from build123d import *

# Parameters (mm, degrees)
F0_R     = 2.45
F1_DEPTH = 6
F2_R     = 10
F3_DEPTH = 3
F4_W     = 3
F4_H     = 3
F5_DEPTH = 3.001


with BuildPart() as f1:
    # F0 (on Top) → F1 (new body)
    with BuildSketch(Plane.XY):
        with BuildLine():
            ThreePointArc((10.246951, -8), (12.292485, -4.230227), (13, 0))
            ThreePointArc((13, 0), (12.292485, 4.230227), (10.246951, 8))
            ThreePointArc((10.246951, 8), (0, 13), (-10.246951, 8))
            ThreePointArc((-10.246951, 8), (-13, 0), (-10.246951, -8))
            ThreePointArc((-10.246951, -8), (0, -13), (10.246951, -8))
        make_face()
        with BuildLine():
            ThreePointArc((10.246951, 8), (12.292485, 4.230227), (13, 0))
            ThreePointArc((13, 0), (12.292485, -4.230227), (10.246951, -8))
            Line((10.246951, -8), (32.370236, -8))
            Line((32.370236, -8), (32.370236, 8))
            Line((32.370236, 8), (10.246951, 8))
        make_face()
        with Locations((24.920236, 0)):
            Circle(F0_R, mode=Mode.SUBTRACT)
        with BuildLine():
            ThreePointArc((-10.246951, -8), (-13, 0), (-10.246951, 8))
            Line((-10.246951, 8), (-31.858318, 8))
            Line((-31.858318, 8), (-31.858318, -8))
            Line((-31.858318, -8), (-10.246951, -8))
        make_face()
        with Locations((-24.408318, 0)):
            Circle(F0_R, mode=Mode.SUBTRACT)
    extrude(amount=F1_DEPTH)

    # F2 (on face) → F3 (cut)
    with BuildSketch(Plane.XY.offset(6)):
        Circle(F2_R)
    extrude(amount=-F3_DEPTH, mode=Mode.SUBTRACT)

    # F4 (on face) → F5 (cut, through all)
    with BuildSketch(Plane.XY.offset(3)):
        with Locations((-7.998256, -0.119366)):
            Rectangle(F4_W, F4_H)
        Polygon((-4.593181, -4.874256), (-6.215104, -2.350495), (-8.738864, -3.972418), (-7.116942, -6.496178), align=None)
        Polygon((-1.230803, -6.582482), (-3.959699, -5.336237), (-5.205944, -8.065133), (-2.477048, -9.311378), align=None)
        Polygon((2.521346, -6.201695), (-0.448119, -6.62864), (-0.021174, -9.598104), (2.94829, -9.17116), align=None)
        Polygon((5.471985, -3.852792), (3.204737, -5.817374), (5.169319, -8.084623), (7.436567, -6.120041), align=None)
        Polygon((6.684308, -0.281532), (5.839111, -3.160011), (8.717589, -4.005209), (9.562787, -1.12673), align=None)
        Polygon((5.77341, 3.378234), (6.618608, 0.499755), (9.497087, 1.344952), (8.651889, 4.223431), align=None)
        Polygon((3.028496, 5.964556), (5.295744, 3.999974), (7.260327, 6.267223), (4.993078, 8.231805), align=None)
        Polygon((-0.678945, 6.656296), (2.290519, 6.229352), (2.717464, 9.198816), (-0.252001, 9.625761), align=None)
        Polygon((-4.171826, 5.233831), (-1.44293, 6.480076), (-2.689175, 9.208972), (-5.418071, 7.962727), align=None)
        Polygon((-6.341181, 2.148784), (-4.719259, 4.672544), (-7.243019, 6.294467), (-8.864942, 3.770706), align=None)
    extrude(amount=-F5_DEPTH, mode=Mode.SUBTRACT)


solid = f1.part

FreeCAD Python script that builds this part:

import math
import FreeCAD as App
import Part
import Sketcher
from FreeCAD import Vector
Q = App.Units.Quantity

doc = App.newDocument("Part")
body = doc.addObject("PartDesign::Body", "Body")

sketch1 = doc.addObject("Sketcher::SketchObject", "Sketch")
body.addObject(sketch1)
sketch1.AttachmentSupport = (doc.XY_Plane, [""])
sketch1.MapMode = "FlatFace"
sketch1.addGeometry([
    Part.ArcOfCircle(Part.Circle(Vector(0, 0, 0), Vector(0, 0, 1), 13), math.radians(38), math.radians(142)),
    Part.LineSegment(Vector(-10.2, 8, 0), Vector(-31.9, 8, 0)),
    Part.LineSegment(Vector(-31.9, 8, 0), Vector(-31.9, -8, 0)),
    Part.LineSegment(Vector(-31.9, -8, 0), Vector(-10.2, -8, 0)),
    Part.ArcOfCircle(Part.Circle(Vector(0, 0, 0), Vector(0, 0, 1), 13), math.radians(-142), math.radians(-38)),
    Part.LineSegment(Vector(10.2, -8, 0), Vector(32.4, -8, 0)),
    Part.LineSegment(Vector(32.4, -8, 0), Vector(32.4, 8, 0)),
    Part.LineSegment(Vector(32.4, 8, 0), Vector(10.2, 8, 0)),
    Part.Circle(Vector(-24.4, 0, 0), Vector(0, 0, 1), 2.5),
    Part.Circle(Vector(24.9, 0, 0), Vector(0, 0, 1), 2.5),
], False)
sketch1.addConstraint([
    Sketcher.Constraint("Coincident", 0, 2, 1, 1),
    Sketcher.Constraint("Coincident", 1, 2, 2, 1),
    Sketcher.Constraint("Coincident", 2, 2, 3, 1),
    Sketcher.Constraint("Coincident", 3, 2, 4, 1),
    Sketcher.Constraint("Coincident", 4, 2, 5, 1),
    Sketcher.Constraint("Coincident", 5, 2, 6, 1),
    Sketcher.Constraint("Coincident", 6, 2, 7, 1),
    Sketcher.Constraint("Coincident", 7, 2, 0, 1),
    Sketcher.Constraint("Horizontal", 1),
    Sketcher.Constraint("Vertical", 2),
    Sketcher.Constraint("Horizontal", 3),
    Sketcher.Constraint("Horizontal", 5),
    Sketcher.Constraint("Vertical", 6),
    Sketcher.Constraint("Horizontal", 7),
    Sketcher.Constraint("Coincident", 0, 3, -1, 1),
    Sketcher.Constraint("Coincident", 4, 3, -1, 1),
    Sketcher.Constraint("Equal", 0, 4),
    Sketcher.Constraint("Equal", 8, 9),
    Sketcher.Constraint("PointOnObject", 8, 3, -1),
    Sketcher.Constraint("PointOnObject", 9, 3, -1),
    Sketcher.Constraint("Horizontal", 3, 2, 4, 2),
    Sketcher.Constraint("Horizontal", 1, 2, 6, 2),
    Sketcher.Constraint("Vertical", 0, 2, 3, 2),
    Sketcher.Constraint("Radius", 0, Q("13 mm")),
    Sketcher.Constraint("Diameter", 8, Q("4.9 mm")),
    Sketcher.Constraint("DistanceY", 2, 2, 2, 1, Q("16 mm")),
    Sketcher.Constraint("DistanceX", 1, 2, 8, 3, Q("7.45 mm")),
    Sketcher.Constraint("DistanceX", 9, 3, 5, 2, Q("7.45 mm")),
    Sketcher.Constraint("DistanceX", 1, 2, 1, 1, Q("21.611367 mm")),
    Sketcher.Constraint("DistanceX", 5, 1, 5, 2, Q("22.123285 mm")),
])
pad1 = doc.addObject("PartDesign::Pad", "Pad")
body.addObject(pad1)
pad1.Profile = sketch1
pad1.Length = 6

sketch2 = doc.addObject("Sketcher::SketchObject", "Sketch001")
body.addObject(sketch2)
sketch2.AttachmentSupport = (doc.XY_Plane, [""])
sketch2.MapMode = "FlatFace"
sketch2.AttachmentOffset = App.Placement(Vector(0, 0, 6), App.Rotation())
sketch2.addGeometry(Part.Circle(Vector(0, 0, 0), Vector(0, 0, 1), 10), False)
sketch2.addConstraint([
    Sketcher.Constraint("Coincident", 0, 3, -1, 1),
    Sketcher.Constraint("Diameter", 0, Q("20 mm")),
])
pocket1 = doc.addObject("PartDesign::Pocket", "Pocket")
body.addObject(pocket1)
pocket1.Profile = sketch2
pocket1.Length = 3

sketch3 = doc.addObject("Sketcher::SketchObject", "Sketch002")
body.addObject(sketch3)
sketch3.AttachmentSupport = (doc.XY_Plane, [""])
sketch3.MapMode = "FlatFace"
sketch3.AttachmentOffset = App.Placement(Vector(0, 0, 3), App.Rotation())
sketch3.addGeometry([
    Part.LineSegment(Vector(-9.5, 1.4, 0), Vector(-9.5, -1.6, 0)),
    Part.LineSegment(Vector(-9.5, -1.6, 0), Vector(-6.5, -1.6, 0)),
    Part.LineSegment(Vector(-6.5, -1.6, 0), Vector(-6.5, 1.4, 0)),
    Part.LineSegment(Vector(-6.5, 1.4, 0), Vector(-9.5, 1.4, 0)),
    Part.LineSegment(Vector(-4.6, -4.9, 0), Vector(-6.2, -2.4, 0)),
    Part.LineSegment(Vector(-6.2, -2.4, 0), Vector(-8.7, -4, 0)),
    Part.LineSegment(Vector(-8.7, -4, 0), Vector(-7.1, -6.5, 0)),
    Part.LineSegment(Vector(-7.1, -6.5, 0), Vector(-4.6, -4.9, 0)),
    Part.LineSegment(Vector(-1.2, -6.6, 0), Vector(-4, -5.3, 0)),
    Part.LineSegment(Vector(-4, -5.3, 0), Vector(-5.2, -8.1, 0)),
    Part.LineSegment(Vector(-5.2, -8.1, 0), Vector(-2.5, -9.3, 0)),
    Part.LineSegment(Vector(-2.5, -9.3, 0), Vector(-1.2, -6.6, 0)),
    Part.LineSegment(Vector(2.5, -6.2, 0), Vector(-0.4, -6.6, 0)),
    Part.LineSegment(Vector(-0.4, -6.6, 0), Vector(0, -9.6, 0)),
    Part.LineSegment(Vector(0, -9.6, 0), Vector(2.9, -9.2, 0)),
    Part.LineSegment(Vector(2.9, -9.2, 0), Vector(2.5, -6.2, 0)),
    Part.LineSegment(Vector(5.5, -3.9, 0), Vector(3.2, -5.8, 0)),
    Part.LineSegment(Vector(3.2, -5.8, 0), Vector(5.2, -8.1, 0)),
    Part.LineSegment(Vector(5.2, -8.1, 0), Vector(7.4, -6.1, 0)),
    Part.LineSegment(Vector(7.4, -6.1, 0), Vector(5.5, -3.9, 0)),
    Part.LineSegment(Vector(6.7, -0.3, 0), Vector(5.8, -3.2, 0)),
    Part.LineSegment(Vector(5.8, -3.2, 0), Vector(8.7, -4, 0)),
    Part.LineSegment(Vector(8.7, -4, 0), Vector(9.6, -1.1, 0)),
    Part.LineSegment(Vector(9.6, -1.1, 0), Vector(6.7, -0.3, 0)),
    Part.LineSegment(Vector(5.8, 3.4, 0), Vector(6.6, 0.5, 0)),
    Part.LineSegment(Vector(6.6, 0.5, 0), Vector(9.5, 1.3, 0)),
    Part.LineSegment(Vector(9.5, 1.3, 0), Vector(8.7, 4.2, 0)),
    Part.LineSegment(Vector(8.7, 4.2, 0), Vector(5.8, 3.4, 0)),
    Part.LineSegment(Vector(3, 6, 0), Vector(5.3, 4, 0)),
    Part.LineSegment(Vector(5.3, 4, 0), Vector(7.3, 6.3, 0)),
    Part.LineSegment(Vector(7.3, 6.3, 0), Vector(5, 8.2, 0)),
    Part.LineSegment(Vector(5, 8.2, 0), Vector(3, 6, 0)),
    Part.LineSegment(Vector(-0.7, 6.7, 0), Vector(2.3, 6.2, 0)),
    Part.LineSegment(Vector(2.3, 6.2, 0), Vector(2.7, 9.2, 0)),
    Part.LineSegment(Vector(2.7, 9.2, 0), Vector(-0.3, 9.6, 0)),
    Part.LineSegment(Vector(-0.3, 9.6, 0), Vector(-0.7, 6.7, 0)),
    Part.LineSegment(Vector(-4.2, 5.2, 0), Vector(-1.4, 6.5, 0)),
    Part.LineSegment(Vector(-1.4, 6.5, 0), Vector(-2.7, 9.2, 0)),
    Part.LineSegment(Vector(-2.7, 9.2, 0), Vector(-5.4, 8, 0)),
    Part.LineSegment(Vector(-5.4, 8, 0), Vector(-4.2, 5.2, 0)),
    Part.LineSegment(Vector(-6.3, 2.1, 0), Vector(-4.7, 4.7, 0)),
    Part.LineSegment(Vector(-4.7, 4.7, 0), Vector(-7.2, 6.3, 0)),
    Part.LineSegment(Vector(-7.2, 6.3, 0), Vector(-8.9, 3.8, 0)),
    Part.LineSegment(Vector(-8.9, 3.8, 0), Vector(-6.3, 2.1, 0)),
], False)
sketch3.addConstraint([
    Sketcher.Constraint("Coincident", 0, 2, 1, 1),
    Sketcher.Constraint("Coincident", 1, 2, 2, 1),
    Sketcher.Constraint("Coincident", 2, 2, 3, 1),
    Sketcher.Constraint("Coincident", 3, 2, 0, 1),
    Sketcher.Constraint("Coincident", 4, 2, 5, 1),
    Sketcher.Constraint("Coincident", 5, 2, 6, 1),
    Sketcher.Constraint("Coincident", 6, 2, 7, 1),
    Sketcher.Constraint("Coincident", 7, 2, 4, 1),
    Sketcher.Constraint("Coincident", 8, 2, 9, 1),
    Sketcher.Constraint("Coincident", 9, 2, 10, 1),
    Sketcher.Constraint("Coincident", 10, 2, 11, 1),
    Sketcher.Constraint("Coincident", 11, 2, 8, 1),
    Sketcher.Constraint("Coincident", 12, 2, 13, 1),
    Sketcher.Constraint("Coincident", 13, 2, 14, 1),
    Sketcher.Constraint("Coincident", 14, 2, 15, 1),
    Sketcher.Constraint("Coincident", 15, 2, 12, 1),
    Sketcher.Constraint("Coincident", 16, 2, 17, 1),
    Sketcher.Constraint("Coincident", 17, 2, 18, 1),
    Sketcher.Constraint("Coincident", 18, 2, 19, 1),
    Sketcher.Constraint("Coincident", 19, 2, 16, 1),
    Sketcher.Constraint("Coincident", 20, 2, 21, 1),
    Sketcher.Constraint("Coincident", 21, 2, 22, 1),
    Sketcher.Constraint("Coincident", 22, 2, 23, 1),
    Sketcher.Constraint("Coincident", 23, 2, 20, 1),
    Sketcher.Constraint("Coincident", 24, 2, 25, 1),
    Sketcher.Constraint("Coincident", 25, 2, 26, 1),
    Sketcher.Constraint("Coincident", 26, 2, 27, 1),
    Sketcher.Constraint("Coincident", 27, 2, 24, 1),
    Sketcher.Constraint("Coincident", 28, 2, 29, 1),
    Sketcher.Constraint("Coincident", 29, 2, 30, 1),
    Sketcher.Constraint("Coincident", 30, 2, 31, 1),
    Sketcher.Constraint("Coincident", 31, 2, 28, 1),
    Sketcher.Constraint("Coincident", 32, 2, 33, 1),
    Sketcher.Constraint("Coincident", 33, 2, 34, 1),
    Sketcher.Constraint("Coincident", 34, 2, 35, 1),
    Sketcher.Constraint("Coincident", 35, 2, 32, 1),
    Sketcher.Constraint("Coincident", 36, 2, 37, 1),
    Sketcher.Constraint("Coincident", 37, 2, 38, 1),
    Sketcher.Constraint("Coincident", 38, 2, 39, 1),
    Sketcher.Constraint("Coincident", 39, 2, 36, 1),
    Sketcher.Constraint("Coincident", 40, 2, 41, 1),
    Sketcher.Constraint("Coincident", 41, 2, 42, 1),
    Sketcher.Constraint("Coincident", 42, 2, 43, 1),
    Sketcher.Constraint("Coincident", 43, 2, 40, 1),
    Sketcher.Constraint("Vertical", 0),
    Sketcher.Constraint("Horizontal", 1),
    Sketcher.Constraint("Vertical", 2),
    Sketcher.Constraint("Horizontal", 3),
    Sketcher.Constraint("Perpendicular", 4, 5),
    Sketcher.Constraint("Perpendicular", 5, 6),
    Sketcher.Constraint("Perpendicular", 6, 7),
    Sketcher.Constraint("Perpendicular", 8, 9),
    Sketcher.Constraint("Perpendicular", 9, 10),
    Sketcher.Constraint("Perpendicular", 10, 11),
    Sketcher.Constraint("Perpendicular", 12, 13),
    Sketcher.Constraint("Perpendicular", 13, 14),
    Sketcher.Constraint("Perpendicular", 14, 15),
    Sketcher.Constraint("Perpendicular", 16, 17),
    Sketcher.Constraint("Perpendicular", 17, 18),
    Sketcher.Constraint("Perpendicular", 18, 19),
    Sketcher.Constraint("Perpendicular", 20, 21),
    Sketcher.Constraint("Perpendicular", 21, 22),
    Sketcher.Constraint("Perpendicular", 22, 23),
    Sketcher.Constraint("Perpendicular", 24, 25),
    Sketcher.Constraint("Perpendicular", 25, 26),
    Sketcher.Constraint("Perpendicular", 26, 27),
    Sketcher.Constraint("Perpendicular", 28, 29),
    Sketcher.Constraint("Perpendicular", 29, 30),
    Sketcher.Constraint("Perpendicular", 30, 31),
    Sketcher.Constraint("Perpendicular", 32, 33),
    Sketcher.Constraint("Perpendicular", 33, 34),
    Sketcher.Constraint("Perpendicular", 34, 35),
    Sketcher.Constraint("Perpendicular", 36, 37),
    Sketcher.Constraint("Perpendicular", 37, 38),
    Sketcher.Constraint("Perpendicular", 38, 39),
    Sketcher.Constraint("Perpendicular", 40, 41),
    Sketcher.Constraint("Perpendicular", 41, 42),
    Sketcher.Constraint("Perpendicular", 42, 43),
    Sketcher.Constraint("Equal", 3, 0),
    Sketcher.Constraint("Equal", 4, 5),
    Sketcher.Constraint("Equal", 7, 8),
    Sketcher.Constraint("Equal", 8, 9),
    Sketcher.Constraint("Equal", 11, 12),
    Sketcher.Constraint("Equal", 12, 13),
    Sketcher.Constraint("Equal", 15, 16),
    Sketcher.Constraint("Equal", 16, 17),
    Sketcher.Constraint("Equal", 19, 20),
    Sketcher.Constraint("Equal", 20, 21),
    Sketcher.Constraint("Equal", 23, 24),
    Sketcher.Constraint("Equal", 24, 25),
    Sketcher.Constraint("Equal", 27, 28),
    Sketcher.Constraint("Equal", 28, 29),
    Sketcher.Constraint("Equal", 31, 32),
    Sketcher.Constraint("Equal", 32, 33),
    Sketcher.Constraint("Equal", 35, 36),
    Sketcher.Constraint("Equal", 36, 37),
    Sketcher.Constraint("Equal", 39, 40),
    Sketcher.Constraint("Equal", 40, 41),
    Sketcher.Constraint("DistanceX", 1, 1, 1, 2, Q("3 mm")),
    Sketcher.Constraint("Distance", 4, Q("3.000001 mm")),
    Sketcher.Constraint("DistanceX", 34, 2, -1, 1, Q("0.252001 mm")),
    Sketcher.Constraint("DistanceX", 6, 2, 9, 2, Q("1.910998 mm")),
    Sketcher.Constraint("DistanceX", 8, 2, -1, 1, Q("3.959699 mm")),
    Sketcher.Constraint("DistanceY", 10, 2, 6, 2, Q("2.8152 mm")),
    Sketcher.Constraint("DistanceY", 12, 2, 18, 2, Q("0.508599 mm")),
    Sketcher.Constraint("DistanceY", 22, 2, 23, 2, Q("0.845198 mm")),
    Sketcher.Constraint("DistanceX", 24, 2, 23, 2, Q("0.0657 mm")),
    Sketcher.Constraint("DistanceX", 25, 2, 22, 2, Q("0.0657 mm")),
    Sketcher.Constraint("DistanceX", 7, 2, -1, 1, Q("4.593181 mm")),
    Sketcher.Constraint("DistanceY", 11, 2, -1, 1, Q("6.582482 mm")),
    Sketcher.Constraint("DistanceX", 12, 2, -1, 1, Q("0.448119 mm")),
    Sketcher.Constraint("DistanceY", 12, 2, -1, 1, Q("6.62864 mm")),
    Sketcher.Constraint("DistanceX", -1, 1, 14, 2, Q("2.94829 mm")),
    Sketcher.Constraint("DistanceX", -1, 1, 17, 2, Q("5.169319 mm")),
    Sketcher.Constraint("DistanceY", 19, 2, -1, 1, Q("3.852792 mm")),
    Sketcher.Constraint("DistanceX", -1, 1, 20, 2, Q("5.839111 mm")),
    Sketcher.Constraint("DistanceY", 20, 2, -1, 1, Q("3.160011 mm")),
    Sketcher.Constraint("DistanceY", -1, 1, 25, 2, Q("1.344952 mm")),
    Sketcher.Constraint("DistanceX", -1, 1, 32, 2, Q("2.290519 mm")),
    Sketcher.Constraint("DistanceY", -1, 1, 32, 2, Q("6.229352 mm")),
    Sketcher.Constraint("DistanceX", 36, 2, -1, 1, Q("1.44293 mm")),
    Sketcher.Constraint("DistanceY", -1, 1, 37, 2, Q("9.208972 mm")),
    Sketcher.Constraint("DistanceX", 38, 2, -1, 1, Q("5.418071 mm")),
    Sketcher.Constraint("DistanceX", 40, 2, -1, 1, Q("4.719259 mm")),
    Sketcher.Constraint("DistanceX", 41, 2, -1, 1, Q("7.243019 mm")),
    Sketcher.Constraint("DistanceX", 1, 2, 4, 2, Q("0.283152 mm")),
    Sketcher.Constraint("DistanceY", 4, 2, 1, 2, Q("0.731129 mm")),
    Sketcher.Constraint("DistanceY", 5, 2, 0, 2, Q("2.353052 mm")),
    Sketcher.Constraint("DistanceY", 27, 2, 28, 2, Q("0.62174 mm")),
    Sketcher.Constraint("DistanceY", 28, 2, 29, 2, Q("2.267249 mm")),
    Sketcher.Constraint("DistanceX", 29, 2, 25, 2, Q("2.23676 mm")),
    Sketcher.Constraint("DistanceY", 2, 2, 40, 2, Q("3.29191 mm")),
])
pocket2 = doc.addObject("PartDesign::Pocket", "Pocket001")
body.addObject(pocket2)
pocket2.Profile = sketch3
pocket2.Type = "ThroughAll"

doc.recompute()
